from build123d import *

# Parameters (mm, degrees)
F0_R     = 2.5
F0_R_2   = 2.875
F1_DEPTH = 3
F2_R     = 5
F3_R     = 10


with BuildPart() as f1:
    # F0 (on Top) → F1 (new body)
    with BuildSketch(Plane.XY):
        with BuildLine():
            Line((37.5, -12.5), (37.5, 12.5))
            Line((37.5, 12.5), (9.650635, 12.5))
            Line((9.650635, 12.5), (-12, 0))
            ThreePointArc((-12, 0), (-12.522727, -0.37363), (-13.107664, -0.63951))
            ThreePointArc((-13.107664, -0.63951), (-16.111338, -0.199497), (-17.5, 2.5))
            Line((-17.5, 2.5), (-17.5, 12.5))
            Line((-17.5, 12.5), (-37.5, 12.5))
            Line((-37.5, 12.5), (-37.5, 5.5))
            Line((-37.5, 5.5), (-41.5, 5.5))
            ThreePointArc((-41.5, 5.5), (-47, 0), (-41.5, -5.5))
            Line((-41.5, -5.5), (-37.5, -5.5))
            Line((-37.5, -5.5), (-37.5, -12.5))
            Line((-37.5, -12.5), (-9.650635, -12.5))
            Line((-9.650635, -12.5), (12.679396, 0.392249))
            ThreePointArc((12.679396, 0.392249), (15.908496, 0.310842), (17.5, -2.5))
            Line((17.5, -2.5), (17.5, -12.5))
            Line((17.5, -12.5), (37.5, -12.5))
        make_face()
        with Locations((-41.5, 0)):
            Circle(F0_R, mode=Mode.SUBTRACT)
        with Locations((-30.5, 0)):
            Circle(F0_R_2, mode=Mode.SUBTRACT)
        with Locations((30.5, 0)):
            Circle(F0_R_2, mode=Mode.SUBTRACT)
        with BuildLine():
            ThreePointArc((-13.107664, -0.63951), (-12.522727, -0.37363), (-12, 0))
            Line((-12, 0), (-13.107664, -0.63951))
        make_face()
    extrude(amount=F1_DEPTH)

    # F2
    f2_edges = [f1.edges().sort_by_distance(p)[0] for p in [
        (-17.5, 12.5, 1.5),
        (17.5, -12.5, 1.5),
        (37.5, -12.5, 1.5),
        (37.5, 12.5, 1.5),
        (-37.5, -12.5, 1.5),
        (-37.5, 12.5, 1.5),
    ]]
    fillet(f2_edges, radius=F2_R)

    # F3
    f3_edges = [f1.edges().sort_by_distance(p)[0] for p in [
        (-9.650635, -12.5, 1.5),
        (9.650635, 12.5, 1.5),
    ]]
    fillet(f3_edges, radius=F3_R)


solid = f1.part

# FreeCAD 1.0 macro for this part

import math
import FreeCAD as App
import Part
import Sketcher
Q = App.Units.Quantity


def edges_at(feature, points):
    """Names of the edges that pass closest to the given points."""
    edges = feature.Shape.Edges
    near = lambda p: min(range(len(edges)), key=lambda i: edges[i].distToShape(Part.Vertex(*p))[0])
    return sorted({f"Edge{near(p) + 1}" for p in points})

doc = App.newDocument("Part")
body = doc.addObject("PartDesign::Body", "Body")

sketch1 = doc.addObject("Sketcher::SketchObject", "Sketch")
body.addObject(sketch1)
sketch1.AttachmentSupport = (doc.XY_Plane, [""])
sketch1.MapMode = "FlatFace"
sketch1.addGeometry([
    Part.LineSegment(App.Vector(37.5, -12.5, 0), App.Vector(37.5, 12.5, 0)),
    Part.LineSegment(App.Vector(37.5, 12.5, 0), App.Vector(9.7, 12.5, 0)),
    Part.LineSegment(App.Vector(9.7, 12.5, 0), App.Vector(-12, 0, 0)),
    Part.LineSegment(App.Vector(-12, 0, 0), App.Vector(-13.1, -0.6, 0)),
    Part.ArcOfCircle(Part.Circle(App.Vector(-14.2, 2.5, 0), App.Vector(0, 0, 1), 3.3), math.radians(180), math.radians(289)),
    Part.LineSegment(App.Vector(-17.5, 2.5, 0), App.Vector(-17.5, 12.5, 0)),
    Part.LineSegment(App.Vector(-17.5, 12.5, 0), App.Vector(-37.5, 12.5, 0)),
    Part.LineSegment(App.Vector(-37.5, 12.5, 0), App.Vector(-37.5, 5.5, 0)),
    Part.LineSegment(App.Vector(-37.5, 5.5, 0), App.Vector(-41.5, 5.5, 0)),
    Part.ArcOfCircle(Part.Circle(App.Vector(-41.5, 0, 0), App.Vector(0, 0, 1), 5.5), math.radians(90), math.radians(270)),
    Part.LineSegment(App.Vector(-41.5, -5.5, 0), App.Vector(-37.5, -5.5, 0)),
    Part.LineSegment(App.Vector(-37.5, -5.5, 0), App.Vector(-37.5, -12.5, 0)),
    Part.LineSegment(App.Vector(-37.5, -12.5, 0), App.Vector(-9.7, -12.5, 0)),
    Part.LineSegment(App.Vector(-9.7, -12.5, 0), App.Vector(12.7, 0.4, 0)),
    Part.ArcOfCircle(Part.Circle(App.Vector(14.2, -2.5, 0), App.Vector(0, 0, 1), 3.3), math.radians(0), math.radians(118)),
    Part.LineSegment(App.Vector(17.5, -2.5, 0), App.Vector(17.5, -12.5, 0)),
    Part.LineSegment(App.Vector(17.5, -12.5, 0), App.Vector(37.5, -12.5, 0)),
    Part.Circle(App.Vector(-41.5, 0, 0), App.Vector(0, 0, 1), 2.5),
    Part.Circle(App.Vector(-30.5, 0, 0), App.Vector(0, 0, 1), 2.9),
    Part.Circle(App.Vector(30.5, 0, 0), App.Vector(0, 0, 1), 2.9),
], False)
sketch1.addConstraint([
    Sketcher.Constraint("Coincident", 0, 2, 1, 1),
    Sketcher.Constraint("Coincident", 1, 2, 2, 1),
    Sketcher.Constraint("Coincident", 2, 2, 3, 1),
    Sketcher.Constraint("Coincident", 3, 2, 4, 2),
    Sketcher.Constraint("Tangent", 4, 1, 5, 1),
    Sketcher.Constraint("Coincident", 5, 2, 6, 1),
    Sketcher.Constraint("Coincident", 6, 2, 7, 1),
    Sketcher.Constraint("Coincident", 7, 2, 8, 1),
    Sketcher.Constraint("Tangent", 8, 2, 9, 1),
    Sketcher.Constraint("Tangent", 9, 2, 10, 1),
    Sketcher.Constraint("Coincident", 10, 2, 11, 1),
    Sketcher.Constraint("Coincident", 11, 2, 12, 1),
    Sketcher.Constraint("Coincident", 12, 2, 13, 1),
    Sketcher.Constraint("Coincident", 13, 2, 14, 2),
    Sketcher.Constraint("Tangent", 14, 1, 15, 1),
    Sketcher.Constraint("Coincident", 15, 2, 16, 1),
    Sketcher.Constraint("Coincident", 16, 2, 0, 1),
    Sketcher.Constraint("Vertical", 0),
    Sketcher.Constraint("Horizontal", 1),
    Sketcher.Constraint("Vertical", 5),
    Sketcher.Constraint("Horizontal", 6),
    Sketcher.Constraint("Vertical", 7),
    Sketcher.Constraint("Horizontal", 8),
    Sketcher.Constraint("Horizontal", 10),
    Sketcher.Constraint("Vertical", 11),
    Sketcher.Constraint("Horizontal", 12),
    Sketcher.Constraint("Vertical", 15),
    Sketcher.Constraint("Horizontal", 16),
    Sketcher.Constraint("Coincident", 17, 3, 9, 3),
    Sketcher.Constraint("Equal", 18, 19),
    Sketcher.Constraint("Symmetric", 18, 3, 19, 3, -1, 1),
    Sketcher.Constraint("Symmetric", 0, 2, 11, 2, -1, 1),
    Sketcher.Constraint("Symmetric", 4, 1, 14, 1, -1, 1),
    Sketcher.Constraint("Symmetric", 6, 2, 16, 2, -1, 1),
    Sketcher.Constraint("PointOnObject", 9, 3, -1),
    Sketcher.Constraint("PointOnObject", 18, 3, -1),
    Sketcher.Constraint("PointOnObject", 2, 2, -1),
    Sketcher.Constraint("Parallel", 2, 3),
    Sketcher.Constraint("Parallel", 3, 13),
    Sketcher.Constraint("Horizontal", 1, 2, 5, 2),
    Sketcher.Constraint("Equal", 1, 12),
    Sketcher.Constraint("Diameter", 17, Q("5 mm")),
    Sketcher.Constraint("Radius", 9, Q("5.5 mm")),
    Sketcher.Constraint("Diameter", 18, Q("5.75 mm")),
    Sketcher.Constraint("DistanceX", 6, 2, 6, 1, Q("20 mm")),
    Sketcher.Constraint("DistanceX", 8, 2, 8, 1, Q("4 mm")),
    Sketcher.Constraint("DistanceY", 0, 1, 0, 2, Q("25 mm")),
    Sketcher.Constraint("DistanceY", 5, 1, 5, 2, Q("10 mm")),
    Sketcher.Constraint("Angle", 2, Q("-150 deg")),
    Sketcher.Constraint("DistanceX", 2, 2, -1, 1, Q("12 mm")),
    Sketcher.Constraint("DistanceX", 9, 3, 18, 3, Q("11 mm")),
    Sketcher.Constraint("DistanceX", 18, 3, 19, 3, Q("61 mm")),
    Sketcher.Constraint("Radius", 4, Q("3.318182 mm")),
    Sketcher.Constraint("Radius", 14, Q("3.277943 mm")),
])
pad1 = doc.addObject("PartDesign::Pad", "Pad")
body.addObject(pad1)
pad1.Profile = sketch1
pad1.Length = 3
doc.recompute()

fillet = doc.addObject("PartDesign::Fillet", "Fillet")
body.addObject(fillet)
fillet.Base = (pad1, edges_at(pad1, [
    (-17.5, 12.5, 1.5),
    (17.5, -12.5, 1.5),
    (37.5, -12.5, 1.5),
    (37.5, 12.5, 1.5),
    (-37.5, -12.5, 1.5),
    (-37.5, 12.5, 1.5),
]))
fillet.Radius = 5
doc.recompute()

fillet2 = doc.addObject("PartDesign::Fillet", "Fillet001")
body.addObject(fillet2)
fillet2.Base = (fillet, edges_at(fillet, [(-9.651, -12.5, 1.5), (9.651, 12.5, 1.5)]))
fillet2.Radius = 10

doc.recompute()
